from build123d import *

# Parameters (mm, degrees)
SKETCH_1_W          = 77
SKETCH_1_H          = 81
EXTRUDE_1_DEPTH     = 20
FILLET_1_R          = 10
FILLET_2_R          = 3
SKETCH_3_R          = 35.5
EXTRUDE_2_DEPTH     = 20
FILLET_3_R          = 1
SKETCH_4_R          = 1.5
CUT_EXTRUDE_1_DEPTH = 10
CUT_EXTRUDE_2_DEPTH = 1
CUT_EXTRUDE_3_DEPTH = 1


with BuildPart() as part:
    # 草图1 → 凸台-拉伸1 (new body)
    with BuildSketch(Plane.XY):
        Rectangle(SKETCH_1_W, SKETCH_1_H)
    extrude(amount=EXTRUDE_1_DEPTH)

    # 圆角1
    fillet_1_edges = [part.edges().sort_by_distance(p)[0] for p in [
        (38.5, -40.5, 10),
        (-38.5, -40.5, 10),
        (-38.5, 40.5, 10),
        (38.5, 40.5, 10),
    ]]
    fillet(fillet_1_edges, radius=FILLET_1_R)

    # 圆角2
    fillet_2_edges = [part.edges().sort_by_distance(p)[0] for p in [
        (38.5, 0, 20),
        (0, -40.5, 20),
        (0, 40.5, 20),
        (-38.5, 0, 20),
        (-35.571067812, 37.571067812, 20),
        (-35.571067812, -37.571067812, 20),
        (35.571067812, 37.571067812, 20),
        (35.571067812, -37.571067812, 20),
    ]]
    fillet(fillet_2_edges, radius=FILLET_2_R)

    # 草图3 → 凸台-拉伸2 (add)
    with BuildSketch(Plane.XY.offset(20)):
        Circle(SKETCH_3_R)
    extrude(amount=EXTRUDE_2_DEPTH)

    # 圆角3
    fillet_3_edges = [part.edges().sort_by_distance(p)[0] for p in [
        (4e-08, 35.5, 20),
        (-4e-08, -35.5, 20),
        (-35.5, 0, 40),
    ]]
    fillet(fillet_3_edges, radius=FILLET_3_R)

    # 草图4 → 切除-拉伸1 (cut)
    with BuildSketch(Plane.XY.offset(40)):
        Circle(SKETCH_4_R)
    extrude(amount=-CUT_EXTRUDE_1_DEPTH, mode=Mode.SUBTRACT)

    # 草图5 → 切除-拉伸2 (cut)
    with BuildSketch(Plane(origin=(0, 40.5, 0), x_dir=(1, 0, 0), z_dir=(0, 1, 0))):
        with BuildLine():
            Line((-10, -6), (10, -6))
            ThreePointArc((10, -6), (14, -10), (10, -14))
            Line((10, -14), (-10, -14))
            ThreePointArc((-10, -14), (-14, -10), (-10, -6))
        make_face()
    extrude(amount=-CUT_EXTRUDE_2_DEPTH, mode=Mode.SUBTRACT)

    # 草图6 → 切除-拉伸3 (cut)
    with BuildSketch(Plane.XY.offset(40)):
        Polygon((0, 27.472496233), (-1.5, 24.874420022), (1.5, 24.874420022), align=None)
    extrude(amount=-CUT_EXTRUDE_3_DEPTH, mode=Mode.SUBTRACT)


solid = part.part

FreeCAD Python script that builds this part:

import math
import FreeCAD as App
import Part
import Sketcher

V = App.Vector
Q = App.Units.Quantity


def edges_at(feature, points):
    """Names of the edges that pass closest to the given points."""
    edges = feature.Shape.Edges
    near = lambda p: min(range(len(edges)), key=lambda i: edges[i].distToShape(Part.Vertex(*p))[0])
    return sorted({f"Edge{near(p) + 1}" for p in points})


def add_polygon(sketch, points):
    """Adds a closed chain of lines whose ends are joined by coincident constraints."""
    first, n = sketch.GeometryCount, len(points)
    for a, b in zip(points, points[1:] + points[:1]):
        sketch.addGeometry(Part.LineSegment(App.Vector(*a, 0), App.Vector(*b, 0)), False)
    for i in range(n):
        sketch.addConstraint(Sketcher.Constraint("Coincident", first + i, 2, first + (i + 1) % n, 1))

doc = App.newDocument("Part")
params = doc.addObject("Spreadsheet::Sheet", "Params")
for row, (alias, value) in enumerate([
    ("sketch1_width", "77 mm"),
    ("sketch1_height", "81 mm"),
    ("pad1_length", "20 mm"),
    ("fillet_radius", "10 mm"),
    ("fillet2_radius", "3 mm"),
    ("sketch2_diameter", "71 mm"),
    ("pad2_length", "20 mm"),
    ("fillet3_radius", "1 mm"),
    ("sketch3_diameter", "3 mm"),
    ("pocket1_length", "10 mm"),
    ("sketch4_radius", "4 mm"),
    ("sketch4_width", "20 mm"),
    ("pocket2_length", "1 mm"),
    ("sketch5_width", "3 mm"),
    ("pocket3_length", "1 mm"),
], start=1):
    params.set(f"A{row}", alias)
    params.set(f"B{row}", "=" + value)
    params.setAlias(f"B{row}", alias)

body = doc.addObject("PartDesign::Body", "Body")

# Sketch on XY plane
sketch1 = body.newObject("Sketcher::SketchObject", "Sketch")
sketch1.AttachmentSupport = (doc.getObject("XY_Plane"), [""])
sketch1.MapMode = "FlatFace"
add_polygon(sketch1, [(-38.5, 40.5), (-38.5, -40.5), (38.5, -40.5), (38.5, 40.5)])  # lines 0-3
sketch1.addConstraint([
    Sketcher.Constraint("Vertical", 0),
    Sketcher.Constraint("Horizontal", 1),
    Sketcher.Constraint("Vertical", 2),
    Sketcher.Constraint("Horizontal", 3),
    Sketcher.Constraint("Symmetric", 0, 2, 2, 2, -1, 1),
    Sketcher.Constraint("DistanceX", 1, 1, 1, 2, 77.0),
    Sketcher.Constraint("DistanceY", 0, 2, 0, 1, 81.0),
])
sketch1.setExpression("Constraints[9]", "Params.sketch1_width")
sketch1.setExpression("Constraints[10]", "Params.sketch1_height")
pad1 = body.newObject("PartDesign::Pad", "Pad")
pad1.Profile = sketch1
pad1.setExpression("Length", "Params.pad1_length")
doc.recompute()

fillet = body.newObject("PartDesign::Fillet", "Fillet")
fillet.Base = (pad1, edges_at(pad1, [
    (38.5, -40.5, 10),
    (-38.5, -40.5, 10),
    (-38.5, 40.5, 10),
    (38.5, 40.5, 10),
]))
fillet.setExpression("Radius", "Params.fillet_radius")
doc.recompute()

fillet2 = body.newObject("PartDesign::Fillet", "Fillet001")
fillet2.Base = (fillet, edges_at(fillet, [
    (38.5, 0, 20),
    (0, -40.5, 20),
    (0, 40.5, 20),
    (-38.5, 0, 20),
    (-35.571, 37.571, 20),
    (-35.571, -37.571, 20),
    (35.571, 37.571, 20),
    (35.571, -37.571, 20),
]))
fillet2.setExpression("Radius", "Params.fillet2_radius")

# Sketch on XY plane
sketch2 = body.newObject("Sketcher::SketchObject", "Sketch001")
sketch2.AttachmentSupport = (doc.getObject("XY_Plane"), [""])
sketch2.MapMode = "FlatFace"
sketch2.AttachmentOffset = App.Placement(V(0, 0, 20), App.Rotation())
sketch2.addGeometry(Part.Circle(V(0, 0, 0), V(0, 0, 1), 35.5), False)
sketch2.addConstraint([
    Sketcher.Constraint("Coincident", 0, 3, -1, 1),
    Sketcher.Constraint("Diameter", 0, 71.0),
])
sketch2.setExpression("Constraints[1]", "Params.sketch2_diameter")
pad2 = body.newObject("PartDesign::Pad", "Pad001")
pad2.Profile = sketch2
pad2.setExpression("Length", "Params.pad2_length")
doc.recompute()

fillet3 = body.newObject("PartDesign::Fillet", "Fillet002")
fillet3.Base = (pad2, edges_at(pad2, [(0, 35.5, 20), (0, -35.5, 20), (-35.5, 0, 40)]))
fillet3.setExpression("Radius", "Params.fillet3_radius")

# Sketch on XY plane
sketch3 = body.newObject("Sketcher::SketchObject", "Sketch002")
sketch3.AttachmentSupport = (doc.getObject("XY_Plane"), [""])
sketch3.MapMode = "FlatFace"
sketch3.AttachmentOffset = App.Placement(V(0, 0, 40), App.Rotation())
sketch3.addGeometry(Part.Circle(V(0, 0, 0), V(0, 0, 1), 1.5), False)
sketch3.addConstraint([
    Sketcher.Constraint("Coincident", 0, 3, -1, 1),
    Sketcher.Constraint("Diameter", 0, 3.0),
])
sketch3.setExpression("Constraints[1]", "Params.sketch3_diameter")
pocket1 = body.newObject("PartDesign::Pocket", "Pocket")
pocket1.Profile = sketch3
pocket1.setExpression("Length", "Params.pocket1_length")

# Sketch on XZ plane
sketch4 = body.newObject("Sketcher::SketchObject", "Sketch003")
sketch4.AttachmentSupport = (doc.getObject("XZ_Plane"), [""])
sketch4.MapMode = "FlatFace"
sketch4.AttachmentOffset = App.Placement(V(0, 0, -40.5), App.Rotation())
sketch4.addGeometry([
    Part.LineSegment(V(10, 6, 0), V(-10, 6, 0)),
    Part.ArcOfCircle(Part.Circle(V(-10, 10, 0), V(0, 0, 1), 4), math.radians(90), math.radians(270)),
    Part.LineSegment(V(-10, 14, 0), V(10, 14, 0)),
    Part.ArcOfCircle(Part.Circle(V(10, 10, 0), V(0, 0, 1), 4), math.radians(-90), math.radians(90)),
], False)
sketch4.addConstraint([
    Sketcher.Constraint("Tangent", 0, 2, 1, 2),
    Sketcher.Constraint("Tangent", 1, 1, 2, 1),
    Sketcher.Constraint("Tangent", 2, 2, 3, 2),
    Sketcher.Constraint("Tangent", 3, 1, 0, 1),
    Sketcher.Constraint("Horizontal", 0),
    Sketcher.Constraint("Horizontal", 2),
    Sketcher.Constraint("Radius", 1, 4.0),
    Sketcher.Constraint("DistanceX", 0, 2, 0, 1, 20.0),
    Sketcher.Constraint("DistanceX", 1, 3, -1, 1, 10.0),
    Sketcher.Constraint("DistanceY", -1, 1, 1, 3, 10.0),
])
sketch4.setExpression("Constraints[6]", "Params.sketch4_radius")
sketch4.setExpression("Constraints[7]", "Params.sketch4_width")
pocket2 = body.newObject("PartDesign::Pocket", "Pocket001")
pocket2.Profile = sketch4
pocket2.setExpression("Length", "Params.pocket2_length")
pocket2.Reversed = True

# Sketch on XY plane
sketch5 = body.newObject("Sketcher::SketchObject", "Sketch004")
sketch5.AttachmentSupport = (doc.getObject("XY_Plane"), [""])
sketch5.MapMode = "FlatFace"
sketch5.AttachmentOffset = App.Placement(V(0, 0, 40), App.Rotation())
add_polygon(sketch5, [(0, 27.472496), (-1.5, 24.87442), (1.5, 24.87442)])  # lines 0-2
sketch5.addConstraint([
    Sketcher.Constraint("Horizontal", 1),
    Sketcher.Constraint("PointOnObject", 2, 2, -2),
    Sketcher.Constraint("Equal", 0, 2),
    Sketcher.Constraint("DistanceX", 1, 1, 1, 2, 3.0),
    Sketcher.Constraint("Angle", 0, Q("-120 deg")),
    Sketcher.Constraint("DistanceY", -1, 1, 0, 2, 24.87442),
])
sketch5.setExpression("Constraints[6]", "Params.sketch5_width")
pocket3 = body.newObject("PartDesign::Pocket", "Pocket002")
pocket3.Profile = sketch5
pocket3.setExpression("Length", "Params.pocket3_length")

doc.recompute()
